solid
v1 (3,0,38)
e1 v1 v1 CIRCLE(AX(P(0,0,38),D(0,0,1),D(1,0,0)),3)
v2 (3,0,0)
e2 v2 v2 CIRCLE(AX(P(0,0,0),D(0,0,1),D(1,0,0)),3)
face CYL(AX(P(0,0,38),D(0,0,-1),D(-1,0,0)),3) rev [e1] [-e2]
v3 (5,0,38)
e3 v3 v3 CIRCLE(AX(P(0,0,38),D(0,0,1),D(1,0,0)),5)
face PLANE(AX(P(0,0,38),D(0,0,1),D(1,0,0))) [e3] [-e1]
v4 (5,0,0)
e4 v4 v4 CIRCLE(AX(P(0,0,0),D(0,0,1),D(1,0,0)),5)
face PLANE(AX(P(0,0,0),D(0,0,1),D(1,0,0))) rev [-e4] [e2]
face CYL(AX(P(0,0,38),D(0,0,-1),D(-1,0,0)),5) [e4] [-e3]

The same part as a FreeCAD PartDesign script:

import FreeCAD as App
import Part
import Sketcher

V = App.Vector

doc = App.newDocument("Part")
params = doc.addObject("Spreadsheet::Sheet", "Params")
for row, (alias, value) in enumerate([
    ("sketch1_diameter", "10 mm"),
    ("sketch1_diameter2", "6 mm"),
    ("pad1_length", "38 mm"),
], start=1):
    params.set(f"A{row}", alias)
    params.set(f"B{row}", "=" + value)
    params.setAlias(f"B{row}", alias)

body = doc.addObject("PartDesign::Body", "Body")

sketch1 = body.newObject("Sketcher::SketchObject", "Sketch")
sketch1.AttachmentSupport = (doc.getObject("XY_Plane"), [""])
sketch1.MapMode = "FlatFace"
sketch1.addGeometry([
    Part.Circle(V(0, 0, 0), V(0, 0, 1), 5),
    Part.Circle(V(0, 0, 0), V(0, 0, 1), 3),
], False)
sketch1.addConstraint([
    Sketcher.Constraint("Coincident", 0, 3, -1, 1),
    Sketcher.Constraint("Coincident", 1, 3, -1, 1),
    Sketcher.Constraint("Diameter", 0, 10.0),
    Sketcher.Constraint("Diameter", 1, 6.0),
])
sketch1.setExpression("Constraints[2]", "Params.sketch1_diameter")
sketch1.setExpression("Constraints[3]", "Params.sketch1_diameter2")
pad1 = body.newObject("PartDesign::Pad", "Pad")
pad1.Profile = sketch1
pad1.setExpression("Length", "Params.pad1_length")

doc.recompute()
